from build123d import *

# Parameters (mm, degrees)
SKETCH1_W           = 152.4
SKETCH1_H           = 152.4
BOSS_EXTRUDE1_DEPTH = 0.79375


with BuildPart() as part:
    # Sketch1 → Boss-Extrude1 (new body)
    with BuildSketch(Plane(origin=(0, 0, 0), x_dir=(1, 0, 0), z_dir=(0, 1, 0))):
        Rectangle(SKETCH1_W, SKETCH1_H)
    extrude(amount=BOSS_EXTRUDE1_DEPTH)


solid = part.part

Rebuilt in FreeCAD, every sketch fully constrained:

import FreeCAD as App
import Part
import Sketcher

V = App.Vector
Q = App.Units.Quantity


def add_polygon(sketch, points):
    """Adds a closed chain of lines whose ends are joined by coincident constraints."""
    first, n = sketch.GeometryCount, len(points)
    for a, b in zip(points, points[1:] + points[:1]):
        sketch.addGeometry(Part.LineSegment(App.Vector(*a, 0), App.Vector(*b, 0)), False)
    for i in range(n):
        sketch.addConstraint(Sketcher.Constraint("Coincident", first + i, 2, first + (i + 1) % n, 1))

doc = App.newDocument("Part")
params = doc.addObject("Spreadsheet::Sheet", "Params")
for row, (alias, value) in enumerate([
    ("sketch1_width", "6 in"),
    ("pad1_length", "0.03125 in"),
], start=1):
    params.set(f"A{row}", alias)
    params.set(f"B{row}", "=" + value)
    params.setAlias(f"B{row}", alias)

body = doc.addObject("PartDesign::Body", "Body")

sketch1 = doc.addObject("Sketcher::SketchObject", "Sketch")
body.addObject(sketch1)
sketch1.AttachmentSupport = (doc.XZ_Plane, [""])
sketch1.MapMode = "FlatFace"
add_polygon(sketch1, [(-76, -76), (-76, 76), (76, 76), (76, -76)])
sketch1.addConstraint(Sketcher.Constraint("Vertical", 0))
sketch1.addConstraint(Sketcher.Constraint("Horizontal", 1))
sketch1.addConstraint(Sketcher.Constraint("Vertical", 2))
sketch1.addConstraint(Sketcher.Constraint("Horizontal", 3))
sketch1.addConstraint(Sketcher.Constraint("Symmetric", 0, 2, 2, 2, -1, 1))
sketch1.addConstraint(Sketcher.Constraint("Equal", 3, 0))
sketch1.addConstraint(Sketcher.Constraint("DistanceX", 1, 1, 1, 2, Q("6 in")))
sketch1.setExpression("Constraints[10]", "Params.sketch1_width")
pad1 = doc.addObject("PartDesign::Pad", "Pad")
body.addObject(pad1)
pad1.Profile = sketch1
pad1.setExpression("Length", "Params.pad1_length")
pad1.Reversed = True

doc.recompute()
